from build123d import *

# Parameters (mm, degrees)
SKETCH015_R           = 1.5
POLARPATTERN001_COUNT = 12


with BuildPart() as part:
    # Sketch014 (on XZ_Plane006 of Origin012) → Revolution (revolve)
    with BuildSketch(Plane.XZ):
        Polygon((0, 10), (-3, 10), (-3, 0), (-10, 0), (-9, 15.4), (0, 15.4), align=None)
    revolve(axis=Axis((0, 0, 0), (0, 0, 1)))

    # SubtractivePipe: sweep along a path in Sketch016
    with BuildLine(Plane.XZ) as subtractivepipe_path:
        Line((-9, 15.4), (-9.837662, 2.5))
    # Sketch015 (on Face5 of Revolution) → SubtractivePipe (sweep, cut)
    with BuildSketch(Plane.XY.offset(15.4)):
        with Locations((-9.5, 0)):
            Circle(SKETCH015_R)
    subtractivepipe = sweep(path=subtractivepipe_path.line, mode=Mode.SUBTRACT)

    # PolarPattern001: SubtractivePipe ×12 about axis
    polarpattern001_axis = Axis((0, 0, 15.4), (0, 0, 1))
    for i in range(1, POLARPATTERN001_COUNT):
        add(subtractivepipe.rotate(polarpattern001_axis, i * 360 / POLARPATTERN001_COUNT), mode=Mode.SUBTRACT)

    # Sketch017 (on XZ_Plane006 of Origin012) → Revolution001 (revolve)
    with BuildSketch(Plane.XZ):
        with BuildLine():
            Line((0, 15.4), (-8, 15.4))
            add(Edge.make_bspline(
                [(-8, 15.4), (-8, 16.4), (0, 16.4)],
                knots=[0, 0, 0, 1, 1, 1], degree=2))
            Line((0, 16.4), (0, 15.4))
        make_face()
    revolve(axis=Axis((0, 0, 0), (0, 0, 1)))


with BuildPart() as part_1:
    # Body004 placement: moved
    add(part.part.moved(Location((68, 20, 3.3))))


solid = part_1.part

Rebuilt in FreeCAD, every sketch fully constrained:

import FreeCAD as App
import Part
import Sketcher

V = App.Vector
Q = App.Units.Quantity


def add_polygon(sketch, points):
    """Adds a closed chain of lines whose ends are joined by coincident constraints."""
    first, n = sketch.GeometryCount, len(points)
    for a, b in zip(points, points[1:] + points[:1]):
        sketch.addGeometry(Part.LineSegment(App.Vector(*a, 0), App.Vector(*b, 0)), False)
    for i in range(n):
        sketch.addConstraint(Sketcher.Constraint("Coincident", first + i, 2, first + (i + 1) % n, 1))

doc = App.newDocument("Part")
body = doc.addObject("PartDesign::Body", "Body")

# Sketch on XZ plane
sketch1 = body.newObject("Sketcher::SketchObject", "Sketch")
sketch1.AttachmentSupport = (doc.getObject("XZ_Plane"), [""])
sketch1.MapMode = "FlatFace"
add_polygon(sketch1, [(-3, 10), (0, 10), (0, 15.4), (-9, 15.4), (-10, 0), (-3, 0)])  # lines 0-5
sketch1.addConstraint(Sketcher.Constraint("Horizontal", 0))
sketch1.addConstraint(Sketcher.Constraint("Vertical", 1))
sketch1.addConstraint(Sketcher.Constraint("Horizontal", 2))
sketch1.addConstraint(Sketcher.Constraint("Horizontal", 4))
sketch1.addConstraint(Sketcher.Constraint("Vertical", 5))
sketch1.addConstraint(Sketcher.Constraint("PointOnObject", 0, 2, -2))
sketch1.addConstraint(Sketcher.Constraint("PointOnObject", 3, 2, -1))
sketch1.addConstraint(Sketcher.Constraint("DistanceX", 0, 1, 0, 2, Q("3 mm")))
sketch1.addConstraint(Sketcher.Constraint("DistanceX", 2, 2, 2, 1, Q("9 mm")))
sketch1.addConstraint(Sketcher.Constraint("DistanceX", 4, 1, 4, 2, Q("7 mm")))
sketch1.addConstraint(Sketcher.Constraint("DistanceY", 5, 1, 5, 2, Q("10 mm")))
sketch1.addConstraint(Sketcher.Constraint("DistanceY", 1, 1, 1, 2, Q("5.4 mm")))
revolution = body.newObject("PartDesign::Revolution", "Revolution")
revolution.Profile = sketch1
revolution.ReferenceAxis = (sketch1, ["V_Axis"])
revolution.Angle = 360

# Sketch on XY plane
sketch2 = body.newObject("Sketcher::SketchObject", "Sketch001")
sketch2.AttachmentSupport = (doc.getObject("XY_Plane"), [""])
sketch2.MapMode = "FlatFace"
sketch2.AttachmentOffset = App.Placement(V(0, 0, 15.4), App.Rotation())
sketch2.addGeometry(Part.Circle(V(-9.5, 0, 0), V(0, 0, 1), 1.5), False)
sketch2.addConstraint(Sketcher.Constraint("PointOnObject", 0, 3, -1))
sketch2.addConstraint(Sketcher.Constraint("Diameter", 0, Q("3 mm")))
sketch2.addConstraint(Sketcher.Constraint("DistanceX", 0, 3, -1, 1, Q("9.5 mm")))

# Sketch on an angled plane
sketch3 = body.newObject("Sketcher::SketchObject", "Sketch002")
sketch3.Placement = App.Placement(V(-9.958011, 0, 0.646624), App.Rotation(V(-0.064798569, 0, -0.997898364), V(0, 0.999999999, 0), V(0.997898364, 0, -0.064798569), "ZXY"))
sketch3.addGeometry(Part.LineSegment(V(-15, 0, 0), V(-2, 0, 0)), False)
sketch3.addConstraint(Sketcher.Constraint("Horizontal", 0))
sketch3.addConstraint(Sketcher.Constraint("PointOnObject", 0, 1, -1))
sketch3.addConstraint(Sketcher.Constraint("DistanceX", 0, 1, 0, 2, Q("12.927168 mm")))
sketch3.addConstraint(Sketcher.Constraint("DistanceX", 0, 2, -1, 1, Q("1.857279 mm")))
doc.recompute()

subtractivepipe = body.newObject("PartDesign::SubtractivePipe", "SubtractivePipe")
subtractivepipe.Profile = sketch2
subtractivepipe.Spine = (sketch3, ["Edge1"])
doc.recompute()

polarpattern = body.newObject("PartDesign::PolarPattern", "PolarPattern")
polarpattern.Originals = [subtractivepipe]
polarpattern.Axis = (doc.getObject("Z_Axis"), [""])
polarpattern.Angle = 360
polarpattern.Occurrences = 12
body.Tip = polarpattern

# Sketch on XZ plane
sketch4 = body.newObject("Sketcher::SketchObject", "Sketch003")
sketch4.AttachmentSupport = (doc.getObject("XZ_Plane"), [""])
sketch4.MapMode = "FlatFace"
sketch4.addGeometry(Part.LineSegment(V(-8, 15.4, 0), V(0, 15.4, 0)), False)
sketch4.addGeometry(Part.LineSegment(V(0, 15.4, 0), V(0, 16.4, 0)), False)
sketch4.addGeometry(Part.BSplineCurve([V(-8, 15.4, 0), V(-8, 16.4, 0), V(0, 16.4, 0)], [3, 3], [0, 1], False, 2, [1, 1, 1], False), False)
sketch4.addConstraint(Sketcher.Constraint("Block", 2))
sketch4.addConstraint(Sketcher.Constraint("Coincident", 0, 2, 1, 1))
sketch4.addConstraint(Sketcher.Constraint("Coincident", 1, 2, 2, 2))
sketch4.addConstraint(Sketcher.Constraint("Coincident", 2, 1, 0, 1))
sketch4.addConstraint(Sketcher.Constraint("Horizontal", 0))
sketch4.addConstraint(Sketcher.Constraint("Vertical", 1))
revolution2 = body.newObject("PartDesign::Revolution", "Revolution001")
revolution2.Profile = sketch4
revolution2.ReferenceAxis = (sketch4, ["V_Axis"])
revolution2.Angle = 360
body2 = doc.addObject("PartDesign::Body", "Body001")
doc.recompute()

body.Placement = App.Placement(V(68, 20, 3.3), App.Rotation(V(0, 0, 1), 0))
boolean = body2.newObject("PartDesign::Boolean", "Boolean")
boolean.Type = "Fuse"
boolean.addObjects([body])

doc.recompute()
